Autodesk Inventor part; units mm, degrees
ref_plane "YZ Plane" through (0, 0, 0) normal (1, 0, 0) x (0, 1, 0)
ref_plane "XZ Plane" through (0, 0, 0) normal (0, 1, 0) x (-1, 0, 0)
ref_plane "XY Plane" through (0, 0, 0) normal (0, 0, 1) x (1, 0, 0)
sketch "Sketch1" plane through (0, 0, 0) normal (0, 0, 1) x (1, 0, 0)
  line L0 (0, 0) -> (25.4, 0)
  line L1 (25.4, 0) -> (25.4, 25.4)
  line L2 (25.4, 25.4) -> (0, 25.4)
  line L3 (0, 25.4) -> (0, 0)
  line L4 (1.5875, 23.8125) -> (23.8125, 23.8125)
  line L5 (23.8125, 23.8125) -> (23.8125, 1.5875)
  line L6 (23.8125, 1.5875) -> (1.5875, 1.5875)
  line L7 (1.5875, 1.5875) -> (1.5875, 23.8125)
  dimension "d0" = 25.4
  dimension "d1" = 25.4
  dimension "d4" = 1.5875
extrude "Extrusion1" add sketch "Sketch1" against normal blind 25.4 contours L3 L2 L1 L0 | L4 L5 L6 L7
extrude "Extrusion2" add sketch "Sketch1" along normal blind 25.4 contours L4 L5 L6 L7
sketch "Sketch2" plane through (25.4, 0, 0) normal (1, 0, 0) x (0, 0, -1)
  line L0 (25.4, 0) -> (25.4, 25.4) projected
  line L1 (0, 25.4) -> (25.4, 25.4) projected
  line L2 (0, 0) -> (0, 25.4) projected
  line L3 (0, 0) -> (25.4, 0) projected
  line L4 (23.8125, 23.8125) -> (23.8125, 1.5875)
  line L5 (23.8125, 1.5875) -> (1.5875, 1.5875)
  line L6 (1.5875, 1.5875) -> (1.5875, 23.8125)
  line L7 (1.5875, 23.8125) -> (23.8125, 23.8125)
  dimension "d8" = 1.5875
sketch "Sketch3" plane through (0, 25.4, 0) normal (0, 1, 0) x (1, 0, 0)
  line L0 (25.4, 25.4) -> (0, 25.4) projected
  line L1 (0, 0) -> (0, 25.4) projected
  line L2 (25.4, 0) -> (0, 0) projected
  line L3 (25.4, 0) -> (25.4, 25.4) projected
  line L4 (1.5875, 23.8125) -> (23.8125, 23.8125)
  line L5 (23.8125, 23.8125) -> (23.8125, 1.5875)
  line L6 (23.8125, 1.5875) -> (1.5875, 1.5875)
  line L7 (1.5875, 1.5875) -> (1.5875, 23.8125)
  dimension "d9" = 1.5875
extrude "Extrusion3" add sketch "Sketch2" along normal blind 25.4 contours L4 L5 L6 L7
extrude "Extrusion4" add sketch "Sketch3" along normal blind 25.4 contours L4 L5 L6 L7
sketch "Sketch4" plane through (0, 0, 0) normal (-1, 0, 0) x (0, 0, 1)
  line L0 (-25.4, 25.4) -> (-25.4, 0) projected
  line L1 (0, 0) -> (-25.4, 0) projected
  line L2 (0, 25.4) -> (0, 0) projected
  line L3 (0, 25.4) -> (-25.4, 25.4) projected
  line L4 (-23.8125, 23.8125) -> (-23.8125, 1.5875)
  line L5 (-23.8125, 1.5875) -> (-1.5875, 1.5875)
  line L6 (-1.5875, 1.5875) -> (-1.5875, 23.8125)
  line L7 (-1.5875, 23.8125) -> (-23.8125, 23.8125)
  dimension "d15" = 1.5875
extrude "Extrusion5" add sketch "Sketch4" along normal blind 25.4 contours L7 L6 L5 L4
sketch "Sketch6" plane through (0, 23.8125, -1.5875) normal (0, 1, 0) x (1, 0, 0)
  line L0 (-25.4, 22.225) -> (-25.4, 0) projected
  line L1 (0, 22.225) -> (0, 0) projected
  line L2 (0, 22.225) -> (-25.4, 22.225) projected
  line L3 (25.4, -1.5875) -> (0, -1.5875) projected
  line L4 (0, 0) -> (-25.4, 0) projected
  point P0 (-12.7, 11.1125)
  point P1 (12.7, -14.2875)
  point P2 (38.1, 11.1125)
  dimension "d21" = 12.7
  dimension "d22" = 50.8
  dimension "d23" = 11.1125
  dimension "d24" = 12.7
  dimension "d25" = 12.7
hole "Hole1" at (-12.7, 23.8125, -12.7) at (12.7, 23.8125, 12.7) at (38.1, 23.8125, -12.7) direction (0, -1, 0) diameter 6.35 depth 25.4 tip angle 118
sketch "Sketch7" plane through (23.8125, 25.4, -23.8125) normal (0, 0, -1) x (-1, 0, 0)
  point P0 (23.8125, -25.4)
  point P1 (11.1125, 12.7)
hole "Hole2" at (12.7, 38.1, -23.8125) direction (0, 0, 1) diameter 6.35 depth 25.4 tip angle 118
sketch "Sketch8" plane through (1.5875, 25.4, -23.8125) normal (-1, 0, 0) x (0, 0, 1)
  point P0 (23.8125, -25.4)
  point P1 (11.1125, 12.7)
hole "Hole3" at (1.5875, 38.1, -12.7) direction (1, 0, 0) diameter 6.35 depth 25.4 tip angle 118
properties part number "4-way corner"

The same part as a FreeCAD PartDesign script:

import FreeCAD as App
import Part
import Sketcher

V = App.Vector
Q = App.Units.Quantity

doc = App.newDocument("Part")
body = doc.addObject("PartDesign::Body", "Body")

sketch1 = body.newObject("Sketcher::SketchObject", "Sketch")
sketch1.AttachmentSupport = (doc.getObject("XY_Plane"), [""])
sketch1.MapMode = "FlatFace"
sketch1.addGeometry([
    Part.LineSegment(V(0, 25, 0), V(0, 0, 0)),
    Part.LineSegment(V(0, 0, 0), V(25, 0, 0)),
    Part.LineSegment(V(25, 0, 0), V(25, 25, 0)),
    Part.LineSegment(V(25, 25, 0), V(0, 25, 0)),
], False)
sketch1.addConstraint([
    Sketcher.Constraint("Coincident", 0, 2, 1, 1),
    Sketcher.Constraint("Coincident", 1, 2, 2, 1),
    Sketcher.Constraint("Coincident", 2, 2, 3, 1),
    Sketcher.Constraint("Coincident", 3, 2, 0, 1),
    Sketcher.Constraint("Vertical", 0),
    Sketcher.Constraint("Horizontal", 1),
    Sketcher.Constraint("Vertical", 2),
    Sketcher.Constraint("Horizontal", 3),
    Sketcher.Constraint("Coincident", 0, 2, -1, 1),
    Sketcher.Constraint("Equal", 3, 0),
    Sketcher.Constraint("DistanceX", 1, 1, 1, 2, Q("1 in")),
])
pad1 = body.newObject("PartDesign::Pad", "Pad")
pad1.Profile = sketch1
pad1.Length = Q("1 in")
pad1.Reversed = True

sketch2 = body.newObject("Sketcher::SketchObject", "Sketch001")
sketch2.AttachmentSupport = (doc.getObject("XY_Plane"), [""])
sketch2.MapMode = "FlatFace"
sketch2.addGeometry([
    Part.LineSegment(V(24, 24, 0), V(2, 24, 0)),
    Part.LineSegment(V(2, 24, 0), V(2, 2, 0)),
    Part.LineSegment(V(2, 2, 0), V(24, 2, 0)),
    Part.LineSegment(V(24, 2, 0), V(24, 24, 0)),
], False)
sketch2.addConstraint([
    Sketcher.Constraint("Coincident", 0, 2, 1, 1),
    Sketcher.Constraint("Coincident", 1, 2, 2, 1),
    Sketcher.Constraint("Coincident", 2, 2, 3, 1),
    Sketcher.Constraint("Coincident", 3, 2, 0, 1),
    Sketcher.Constraint("Horizontal", 0),
    Sketcher.Constraint("Vertical", 1),
    Sketcher.Constraint("Horizontal", 2),
    Sketcher.Constraint("Vertical", 3),
    Sketcher.Constraint("Equal", 2, 1),
    Sketcher.Constraint("DistanceX", -1, 1, 0, 2, Q("0.0625 in")),
    Sketcher.Constraint("DistanceY", -1, 1, 1, 2, Q("0.0625 in")),
    Sketcher.Constraint("DistanceX", 0, 2, 0, 1, Q("0.875 in")),
])
pad2 = body.newObject("PartDesign::Pad", "Pad001")
pad2.Profile = sketch2
pad2.Length = Q("1 in")

sketch3 = body.newObject("Sketcher::SketchObject", "Sketch002")
sketch3.AttachmentSupport = (doc.getObject("YZ_Plane"), [""])
sketch3.MapMode = "FlatFace"
sketch3.AttachmentOffset = App.Placement(V(0, 0, 1 * 25.4), App.Rotation())
sketch3.addGeometry([
    Part.LineSegment(V(2, -24, 0), V(24, -24, 0)),
    Part.LineSegment(V(24, -24, 0), V(24, -2, 0)),
    Part.LineSegment(V(24, -2, 0), V(2, -2, 0)),
    Part.LineSegment(V(2, -2, 0), V(2, -24, 0)),
], False)
sketch3.addConstraint([
    Sketcher.Constraint("Coincident", 0, 2, 1, 1),
    Sketcher.Constraint("Coincident", 1, 2, 2, 1),
    Sketcher.Constraint("Coincident", 2, 2, 3, 1),
    Sketcher.Constraint("Coincident", 3, 2, 0, 1),
    Sketcher.Constraint("Horizontal", 0),
    Sketcher.Constraint("Vertical", 1),
    Sketcher.Constraint("Horizontal", 2),
    Sketcher.Constraint("Vertical", 3),
    Sketcher.Constraint("Equal", 2, 1),
    Sketcher.Constraint("DistanceY", 1, 2, -1, 1, Q("0.0625 in")),
    Sketcher.Constraint("DistanceX", -1, 1, 2, 2, Q("0.0625 in")),
    Sketcher.Constraint("DistanceX", 0, 1, 0, 2, Q("0.875 in")),
])
pad3 = body.newObject("PartDesign::Pad", "Pad002")
pad3.Profile = sketch3
pad3.Length = Q("1 in")

sketch4 = body.newObject("Sketcher::SketchObject", "Sketch003")
sketch4.AttachmentSupport = (doc.getObject("XZ_Plane"), [""])
sketch4.MapMode = "FlatFace"
sketch4.AttachmentOffset = App.Placement(V(0, 0, -1 * 25.4), App.Rotation())
sketch4.addGeometry([
    Part.LineSegment(V(24, -24, 0), V(2, -24, 0)),
    Part.LineSegment(V(2, -24, 0), V(2, -2, 0)),
    Part.LineSegment(V(2, -2, 0), V(24, -2, 0)),
    Part.LineSegment(V(24, -2, 0), V(24, -24, 0)),
], False)
sketch4.addConstraint([
    Sketcher.Constraint("Coincident", 0, 2, 1, 1),
    Sketcher.Constraint("Coincident", 1, 2, 2, 1),
    Sketcher.Constraint("Coincident", 2, 2, 3, 1),
    Sketcher.Constraint("Coincident", 3, 2, 0, 1),
    Sketcher.Constraint("Horizontal", 0),
    Sketcher.Constraint("Vertical", 1),
    Sketcher.Constraint("Horizontal", 2),
    Sketcher.Constraint("Vertical", 3),
    Sketcher.Constraint("Equal", 2, 1),
    Sketcher.Constraint("DistanceX", -1, 1, 0, 2, Q("0.0625 in")),
    Sketcher.Constraint("DistanceY", 1, 2, -1, 1, Q("0.0625 in")),
    Sketcher.Constraint("DistanceX", 0, 2, 0, 1, Q("0.875 in")),
])
pad4 = body.newObject("PartDesign::Pad", "Pad003")
pad4.Profile = sketch4
pad4.Length = Q("1 in")
pad4.Reversed = True

sketch5 = body.newObject("Sketcher::SketchObject", "Sketch004")
sketch5.AttachmentSupport = (doc.getObject("YZ_Plane"), [""])
sketch5.MapMode = "FlatFace"
sketch5.addGeometry([
    Part.LineSegment(V(24, -2, 0), V(24, -24, 0)),
    Part.LineSegment(V(24, -24, 0), V(2, -24, 0)),
    Part.LineSegment(V(2, -24, 0), V(2, -2, 0)),
    Part.LineSegment(V(2, -2, 0), V(24, -2, 0)),
], False)
sketch5.addConstraint([
    Sketcher.Constraint("Coincident", 0, 2, 1, 1),
    Sketcher.Constraint("Coincident", 1, 2, 2, 1),
    Sketcher.Constraint("Coincident", 2, 2, 3, 1),
    Sketcher.Constraint("Coincident", 3, 2, 0, 1),
    Sketcher.Constraint("Vertical", 0),
    Sketcher.Constraint("Horizontal", 1),
    Sketcher.Constraint("Vertical", 2),
    Sketcher.Constraint("Horizontal", 3),
    Sketcher.Constraint("Equal", 3, 0),
    Sketcher.Constraint("DistanceX", -1, 1, 1, 2, Q("0.0625 in")),
    Sketcher.Constraint("DistanceY", 2, 2, -1, 1, Q("0.0625 in")),
    Sketcher.Constraint("DistanceX", 1, 2, 1, 1, Q("0.875 in")),
])
pad5 = body.newObject("PartDesign::Pad", "Pad004")
pad5.Profile = sketch5
pad5.Length = Q("1 in")
pad5.Reversed = True

sketch6 = body.newObject("Sketcher::SketchObject", "Sketch005")
sketch6.AttachmentSupport = (doc.getObject("XZ_Plane"), [""])
sketch6.MapMode = "FlatFace"
sketch6.AttachmentOffset = App.Placement(V(0, 0, -0.9375 * 25.4), App.Rotation())
sketch6.addGeometry([
    Part.Circle(V(-12.7, -12.7, 0), V(0, 0, 1), 3.2),
    Part.Circle(V(12.7, 12.7, 0), V(0, 0, 1), 3.2),
    Part.Circle(V(38.1, -12.7, 0), V(0, 0, 1), 3.2),
], False)
sketch6.addConstraint([
    Sketcher.Constraint("Equal", 0, 1),
    Sketcher.Constraint("Equal", 1, 2),
    Sketcher.Constraint("Symmetric", 0, 3, 1, 3, -1, 1),
    Sketcher.Constraint("Horizontal", 0, 3, 2, 3),
    Sketcher.Constraint("Diameter", 0, Q("0.25 in")),
    Sketcher.Constraint("DistanceX", 0, 3, 1, 3, Q("1 in")),
    Sketcher.Constraint("DistanceY", 0, 3, 1, 3, Q("1 in")),
    Sketcher.Constraint("DistanceX", 1, 3, 2, 3, Q("1 in")),
])
doc.recompute()
hole = body.newObject("PartDesign::Hole", "Hole")
hole.Profile = sketch6
hole.ThreadType = "None"
hole.Diameter = Q("0.25 in")
hole.DepthType = "Dimension"
hole.Depth = Q("1 in")
hole.DrillPoint = "Angled"
hole.DrillPointAngle = 118
hole.Reversed = True

sketch7 = body.newObject("Sketcher::SketchObject", "Sketch006")
sketch7.AttachmentSupport = (doc.getObject("XY_Plane"), [""])
sketch7.MapMode = "FlatFace"
sketch7.AttachmentOffset = App.Placement(V(0, 0, -0.9375 * 25.4), App.Rotation())
sketch7.addGeometry(Part.Circle(V(12.7, 38.1, 0), V(0, 0, 1), 3.2), False)
sketch7.addConstraint([
    Sketcher.Constraint("Diameter", 0, Q("0.25 in")),
    Sketcher.Constraint("DistanceX", -1, 1, 0, 3, Q("0.5 in")),
    Sketcher.Constraint("DistanceY", -1, 1, 0, 3, Q("1.5 in")),
])
doc.recompute()
hole2 = body.newObject("PartDesign::Hole", "Hole001")
hole2.Profile = sketch7
hole2.ThreadType = "None"
hole2.Diameter = Q("0.25 in")
hole2.DepthType = "Dimension"
hole2.Depth = Q("1 in")
hole2.DrillPoint = "Angled"
hole2.DrillPointAngle = 118
hole2.Reversed = True

sketch8 = body.newObject("Sketcher::SketchObject", "Sketch007")
sketch8.AttachmentSupport = (doc.getObject("YZ_Plane"), [""])
sketch8.MapMode = "FlatFace"
sketch8.AttachmentOffset = App.Placement(V(0, 0, 0.0625 * 25.4), App.Rotation())
sketch8.addGeometry(Part.Circle(V(38.1, -12.7, 0), V(0, 0, 1), 3.2), False)
sketch8.addConstraint([
    Sketcher.Constraint("Diameter", 0, Q("0.25 in")),
    Sketcher.Constraint("DistanceX", -1, 1, 0, 3, Q("1.5 in")),
    Sketcher.Constraint("DistanceY", 0, 3, -1, 1, Q("0.5 in")),
])
doc.recompute()
hole3 = body.newObject("PartDesign::Hole", "Hole002")
hole3.Profile = sketch8
hole3.ThreadType = "None"
hole3.Diameter = Q("0.25 in")
hole3.DepthType = "Dimension"
hole3.Depth = Q("1 in")
hole3.DrillPoint = "Angled"
hole3.DrillPointAngle = 118
hole3.Reversed = True

doc.recompute()
